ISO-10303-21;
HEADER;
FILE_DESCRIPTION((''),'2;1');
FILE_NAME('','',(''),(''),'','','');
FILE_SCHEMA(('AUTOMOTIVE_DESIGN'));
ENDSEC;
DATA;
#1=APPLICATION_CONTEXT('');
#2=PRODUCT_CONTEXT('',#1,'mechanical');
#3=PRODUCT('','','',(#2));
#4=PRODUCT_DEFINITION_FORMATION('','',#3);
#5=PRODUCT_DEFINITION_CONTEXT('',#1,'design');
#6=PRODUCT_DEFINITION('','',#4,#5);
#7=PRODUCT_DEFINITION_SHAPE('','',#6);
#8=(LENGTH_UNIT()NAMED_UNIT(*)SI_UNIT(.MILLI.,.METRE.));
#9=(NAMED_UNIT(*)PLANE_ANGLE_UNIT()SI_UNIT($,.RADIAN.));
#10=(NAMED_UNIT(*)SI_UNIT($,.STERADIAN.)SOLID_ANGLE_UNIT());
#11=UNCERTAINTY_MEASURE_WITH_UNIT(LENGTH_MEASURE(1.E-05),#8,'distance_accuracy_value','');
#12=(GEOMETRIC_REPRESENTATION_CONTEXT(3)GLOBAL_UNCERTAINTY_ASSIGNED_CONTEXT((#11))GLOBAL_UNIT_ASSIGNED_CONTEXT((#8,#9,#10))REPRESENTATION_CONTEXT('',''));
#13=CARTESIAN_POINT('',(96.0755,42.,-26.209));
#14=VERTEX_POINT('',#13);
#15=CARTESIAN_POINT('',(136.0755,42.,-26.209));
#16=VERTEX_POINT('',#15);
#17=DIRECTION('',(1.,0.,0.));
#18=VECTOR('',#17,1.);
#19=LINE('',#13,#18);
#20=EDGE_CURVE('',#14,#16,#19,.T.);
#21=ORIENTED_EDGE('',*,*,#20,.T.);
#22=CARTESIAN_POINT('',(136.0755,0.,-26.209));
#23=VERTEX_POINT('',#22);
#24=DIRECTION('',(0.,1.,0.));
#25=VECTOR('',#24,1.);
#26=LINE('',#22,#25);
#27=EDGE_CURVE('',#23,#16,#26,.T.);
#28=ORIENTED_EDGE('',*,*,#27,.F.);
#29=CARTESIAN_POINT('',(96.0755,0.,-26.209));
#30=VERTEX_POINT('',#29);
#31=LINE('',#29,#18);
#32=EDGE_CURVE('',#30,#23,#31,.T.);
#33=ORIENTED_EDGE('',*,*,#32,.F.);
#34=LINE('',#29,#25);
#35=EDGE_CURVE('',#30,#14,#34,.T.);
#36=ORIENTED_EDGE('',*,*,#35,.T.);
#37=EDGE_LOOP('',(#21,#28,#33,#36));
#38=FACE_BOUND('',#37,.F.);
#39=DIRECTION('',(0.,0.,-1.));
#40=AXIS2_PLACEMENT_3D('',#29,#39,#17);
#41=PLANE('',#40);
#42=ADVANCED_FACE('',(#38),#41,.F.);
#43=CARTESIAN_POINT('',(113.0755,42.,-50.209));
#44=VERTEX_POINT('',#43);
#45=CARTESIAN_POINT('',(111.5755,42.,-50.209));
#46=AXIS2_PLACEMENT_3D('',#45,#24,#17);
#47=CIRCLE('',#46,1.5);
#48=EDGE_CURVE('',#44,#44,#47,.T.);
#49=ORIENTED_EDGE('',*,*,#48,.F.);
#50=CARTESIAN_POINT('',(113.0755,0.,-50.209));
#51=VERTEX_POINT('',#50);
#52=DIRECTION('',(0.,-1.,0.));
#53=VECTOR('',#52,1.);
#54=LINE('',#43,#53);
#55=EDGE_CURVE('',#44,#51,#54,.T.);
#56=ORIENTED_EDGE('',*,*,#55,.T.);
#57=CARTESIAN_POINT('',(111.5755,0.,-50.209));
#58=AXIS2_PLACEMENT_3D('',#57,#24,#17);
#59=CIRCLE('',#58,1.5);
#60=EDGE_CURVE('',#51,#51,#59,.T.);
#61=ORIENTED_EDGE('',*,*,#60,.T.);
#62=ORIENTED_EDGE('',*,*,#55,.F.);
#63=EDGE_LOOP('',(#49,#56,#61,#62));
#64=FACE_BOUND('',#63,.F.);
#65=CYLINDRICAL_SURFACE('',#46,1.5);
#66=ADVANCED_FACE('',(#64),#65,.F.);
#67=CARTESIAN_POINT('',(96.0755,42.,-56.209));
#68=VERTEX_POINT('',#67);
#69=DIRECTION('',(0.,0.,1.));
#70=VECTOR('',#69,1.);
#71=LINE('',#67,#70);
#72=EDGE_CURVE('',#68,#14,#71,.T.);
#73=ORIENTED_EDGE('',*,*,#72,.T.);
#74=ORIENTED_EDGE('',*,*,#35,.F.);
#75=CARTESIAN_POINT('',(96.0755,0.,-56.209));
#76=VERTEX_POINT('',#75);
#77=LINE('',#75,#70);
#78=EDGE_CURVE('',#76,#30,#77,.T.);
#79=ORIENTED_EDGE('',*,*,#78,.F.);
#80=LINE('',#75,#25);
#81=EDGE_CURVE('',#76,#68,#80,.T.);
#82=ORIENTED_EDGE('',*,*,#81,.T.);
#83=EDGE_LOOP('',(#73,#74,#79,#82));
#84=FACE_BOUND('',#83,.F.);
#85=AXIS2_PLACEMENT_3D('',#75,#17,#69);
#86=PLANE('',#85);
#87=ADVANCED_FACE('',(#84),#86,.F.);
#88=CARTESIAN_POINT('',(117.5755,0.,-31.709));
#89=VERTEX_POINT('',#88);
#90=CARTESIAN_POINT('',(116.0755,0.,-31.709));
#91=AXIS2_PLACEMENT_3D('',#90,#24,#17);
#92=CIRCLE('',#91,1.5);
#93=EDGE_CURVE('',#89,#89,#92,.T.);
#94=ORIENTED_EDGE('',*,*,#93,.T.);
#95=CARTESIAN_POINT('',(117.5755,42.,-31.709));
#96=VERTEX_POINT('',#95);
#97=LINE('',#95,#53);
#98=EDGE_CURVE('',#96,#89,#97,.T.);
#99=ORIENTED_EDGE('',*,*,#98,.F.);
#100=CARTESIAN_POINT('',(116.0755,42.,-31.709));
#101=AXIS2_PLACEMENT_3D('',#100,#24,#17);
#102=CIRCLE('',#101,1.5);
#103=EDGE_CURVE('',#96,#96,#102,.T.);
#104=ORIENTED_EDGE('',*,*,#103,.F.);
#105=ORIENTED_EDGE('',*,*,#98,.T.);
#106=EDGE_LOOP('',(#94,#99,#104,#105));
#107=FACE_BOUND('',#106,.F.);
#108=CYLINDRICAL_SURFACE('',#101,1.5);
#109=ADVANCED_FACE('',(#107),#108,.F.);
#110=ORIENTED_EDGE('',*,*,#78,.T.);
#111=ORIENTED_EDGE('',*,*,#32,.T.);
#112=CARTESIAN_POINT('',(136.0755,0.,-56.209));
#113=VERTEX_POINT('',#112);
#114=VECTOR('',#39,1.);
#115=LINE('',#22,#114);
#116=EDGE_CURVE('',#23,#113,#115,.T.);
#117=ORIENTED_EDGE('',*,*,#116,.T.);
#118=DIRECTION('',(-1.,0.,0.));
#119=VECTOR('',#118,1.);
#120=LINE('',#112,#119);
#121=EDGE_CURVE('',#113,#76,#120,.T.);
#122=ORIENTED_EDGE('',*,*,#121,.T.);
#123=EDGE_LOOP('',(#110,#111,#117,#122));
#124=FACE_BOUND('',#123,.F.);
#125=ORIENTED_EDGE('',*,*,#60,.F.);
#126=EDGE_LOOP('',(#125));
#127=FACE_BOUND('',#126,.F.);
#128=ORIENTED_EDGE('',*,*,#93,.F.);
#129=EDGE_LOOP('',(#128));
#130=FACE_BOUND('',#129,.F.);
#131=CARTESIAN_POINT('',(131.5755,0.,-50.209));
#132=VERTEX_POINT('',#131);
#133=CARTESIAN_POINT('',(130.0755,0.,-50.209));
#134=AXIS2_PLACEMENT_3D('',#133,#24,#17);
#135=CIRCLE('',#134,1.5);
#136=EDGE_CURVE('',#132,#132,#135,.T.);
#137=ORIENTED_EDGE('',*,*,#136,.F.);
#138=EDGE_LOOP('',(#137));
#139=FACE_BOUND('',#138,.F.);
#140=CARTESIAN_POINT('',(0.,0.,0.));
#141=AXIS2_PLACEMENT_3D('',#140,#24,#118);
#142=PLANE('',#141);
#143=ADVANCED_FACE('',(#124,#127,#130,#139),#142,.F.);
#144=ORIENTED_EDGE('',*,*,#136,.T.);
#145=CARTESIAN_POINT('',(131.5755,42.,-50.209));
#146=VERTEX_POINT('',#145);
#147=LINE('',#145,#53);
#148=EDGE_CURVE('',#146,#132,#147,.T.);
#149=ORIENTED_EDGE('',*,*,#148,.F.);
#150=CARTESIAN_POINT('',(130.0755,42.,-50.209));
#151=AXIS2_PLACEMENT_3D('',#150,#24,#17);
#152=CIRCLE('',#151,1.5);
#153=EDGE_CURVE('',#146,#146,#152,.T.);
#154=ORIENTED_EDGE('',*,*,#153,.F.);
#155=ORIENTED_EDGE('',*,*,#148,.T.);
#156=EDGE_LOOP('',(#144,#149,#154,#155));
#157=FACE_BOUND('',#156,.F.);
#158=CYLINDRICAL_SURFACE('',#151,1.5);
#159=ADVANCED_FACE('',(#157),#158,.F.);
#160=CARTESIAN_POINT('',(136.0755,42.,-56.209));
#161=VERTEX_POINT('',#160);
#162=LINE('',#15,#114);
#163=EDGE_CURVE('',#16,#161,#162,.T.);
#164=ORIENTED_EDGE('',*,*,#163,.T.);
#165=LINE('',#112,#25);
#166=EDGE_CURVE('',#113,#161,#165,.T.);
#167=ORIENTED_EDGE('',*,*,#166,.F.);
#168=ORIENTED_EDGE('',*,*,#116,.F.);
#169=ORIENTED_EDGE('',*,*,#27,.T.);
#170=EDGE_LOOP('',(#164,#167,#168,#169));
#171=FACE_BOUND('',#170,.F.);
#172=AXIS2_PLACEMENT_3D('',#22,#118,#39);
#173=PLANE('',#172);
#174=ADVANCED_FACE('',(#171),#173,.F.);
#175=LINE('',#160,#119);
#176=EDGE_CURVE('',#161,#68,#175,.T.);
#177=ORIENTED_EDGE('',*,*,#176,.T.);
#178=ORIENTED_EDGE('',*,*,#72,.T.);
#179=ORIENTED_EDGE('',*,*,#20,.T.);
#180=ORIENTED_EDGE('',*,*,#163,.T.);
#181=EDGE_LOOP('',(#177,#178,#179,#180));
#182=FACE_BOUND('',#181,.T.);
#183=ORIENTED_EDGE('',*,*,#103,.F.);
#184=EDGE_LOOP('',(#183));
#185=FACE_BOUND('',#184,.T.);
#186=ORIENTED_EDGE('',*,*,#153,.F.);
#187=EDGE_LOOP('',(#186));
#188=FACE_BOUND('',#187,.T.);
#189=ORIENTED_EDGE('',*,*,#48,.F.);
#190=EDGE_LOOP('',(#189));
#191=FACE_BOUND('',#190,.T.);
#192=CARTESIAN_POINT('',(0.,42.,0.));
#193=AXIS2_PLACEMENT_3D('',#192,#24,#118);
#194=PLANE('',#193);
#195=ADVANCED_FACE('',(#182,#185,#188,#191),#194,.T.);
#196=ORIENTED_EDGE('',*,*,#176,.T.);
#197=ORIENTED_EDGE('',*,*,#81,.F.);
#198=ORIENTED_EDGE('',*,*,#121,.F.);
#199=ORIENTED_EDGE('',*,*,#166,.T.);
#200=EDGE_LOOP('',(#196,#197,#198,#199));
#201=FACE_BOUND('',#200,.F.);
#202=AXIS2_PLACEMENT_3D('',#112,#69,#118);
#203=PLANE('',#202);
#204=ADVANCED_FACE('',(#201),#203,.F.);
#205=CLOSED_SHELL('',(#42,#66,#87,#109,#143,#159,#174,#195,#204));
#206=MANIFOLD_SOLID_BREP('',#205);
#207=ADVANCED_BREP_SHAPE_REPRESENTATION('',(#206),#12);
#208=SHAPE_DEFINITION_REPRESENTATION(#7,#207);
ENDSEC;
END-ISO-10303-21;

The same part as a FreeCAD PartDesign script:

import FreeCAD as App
import Part
import Sketcher

doc = App.newDocument("Part")
params = doc.addObject("Spreadsheet::Sheet", "Params")
for row, (alias, value) in enumerate([
    ("sketch1_width", "40 mm"),
    ("sketch1_height", "30 mm"),
    ("pad1_length", "42 mm"),
    ("sketch2_diameter", "3 mm"),
], start=1):
    params.set(f"A{row}", alias)
    params.set(f"B{row}", "=" + value)
    params.setAlias(f"B{row}", alias)

body = doc.addObject("PartDesign::Body", "Body")

sketch1 = doc.addObject("Sketcher::SketchObject", "Sketch")
body.addObject(sketch1)
sketch1.AttachmentSupport = (doc.XZ_Plane, [""])
sketch1.MapMode = "FlatFace"
sketch1.addGeometry([
    Part.LineSegment(App.Vector(96, -56, 0), App.Vector(96, -26, 0)),
    Part.LineSegment(App.Vector(96, -26, 0), App.Vector(136, -26, 0)),
    Part.LineSegment(App.Vector(136, -26, 0), App.Vector(136, -56, 0)),
    Part.LineSegment(App.Vector(136, -56, 0), App.Vector(96, -56, 0)),
], False)
sketch1.addConstraint([
    Sketcher.Constraint("Coincident", 0, 2, 1, 1),
    Sketcher.Constraint("Coincident", 1, 2, 2, 1),
    Sketcher.Constraint("Coincident", 2, 2, 3, 1),
    Sketcher.Constraint("Coincident", 3, 2, 0, 1),
    Sketcher.Constraint("Vertical", 0),
    Sketcher.Constraint("Horizontal", 1),
    Sketcher.Constraint("Vertical", 2),
    Sketcher.Constraint("Horizontal", 3),
    Sketcher.Constraint("DistanceX", 1, 1, 1, 2, 40.0),
    Sketcher.Constraint("DistanceY", 0, 1, 0, 2, 30.0),
    Sketcher.Constraint("DistanceY", 0, 2, -1, 1, 26.209),
    Sketcher.Constraint("DistanceX", -1, 1, 0, 2, 96.0755),
])
sketch1.setExpression("Constraints[8]", "Params.sketch1_width")
sketch1.setExpression("Constraints[9]", "Params.sketch1_height")
pad1 = doc.addObject("PartDesign::Pad", "Pad")
body.addObject(pad1)
pad1.Profile = sketch1
pad1.setExpression("Length", "Params.pad1_length")
pad1.Reversed = True

sketch2 = doc.addObject("Sketcher::SketchObject", "Sketch001")
body.addObject(sketch2)
sketch2.AttachmentSupport = (doc.XZ_Plane, [""])
sketch2.MapMode = "FlatFace"
sketch2.AttachmentOffset = App.Placement(App.Vector(0, 0, -42), App.Rotation())
sketch2.addGeometry([
    Part.Circle(App.Vector(130.1, -50.2, 0), App.Vector(0, 0, 1), 1.5),
    Part.Circle(App.Vector(111.6, -50.2, 0), App.Vector(0, 0, 1), 1.5),
    Part.Circle(App.Vector(116.1, -31.7, 0), App.Vector(0, 0, 1), 1.5),
], False)
sketch2.addConstraint([
    Sketcher.Constraint("Equal", 0, 1),
    Sketcher.Constraint("Equal", 1, 2),
    Sketcher.Constraint("Horizontal", 0, 3, 1, 3),
    Sketcher.Constraint("Diameter", 0, 3.0),
    Sketcher.Constraint("DistanceX", 1, 3, 0, 3, 18.5),
    Sketcher.Constraint("DistanceY", 1, 3, 2, 3, 18.5),
    Sketcher.Constraint("DistanceX", 2, 3, 0, 3, 14.0),
    Sketcher.Constraint("DistanceY", 0, 3, -1, 1, 50.209),
    Sketcher.Constraint("DistanceX", -1, 1, 0, 3, 130.0755),
])
sketch2.setExpression("Constraints[3]", "Params.sketch2_diameter")
pocket1 = doc.addObject("PartDesign::Pocket", "Pocket")
body.addObject(pocket1)
pocket1.Profile = sketch2
pocket1.Type = "ThroughAll"
pocket1.Reversed = True

doc.recompute()
